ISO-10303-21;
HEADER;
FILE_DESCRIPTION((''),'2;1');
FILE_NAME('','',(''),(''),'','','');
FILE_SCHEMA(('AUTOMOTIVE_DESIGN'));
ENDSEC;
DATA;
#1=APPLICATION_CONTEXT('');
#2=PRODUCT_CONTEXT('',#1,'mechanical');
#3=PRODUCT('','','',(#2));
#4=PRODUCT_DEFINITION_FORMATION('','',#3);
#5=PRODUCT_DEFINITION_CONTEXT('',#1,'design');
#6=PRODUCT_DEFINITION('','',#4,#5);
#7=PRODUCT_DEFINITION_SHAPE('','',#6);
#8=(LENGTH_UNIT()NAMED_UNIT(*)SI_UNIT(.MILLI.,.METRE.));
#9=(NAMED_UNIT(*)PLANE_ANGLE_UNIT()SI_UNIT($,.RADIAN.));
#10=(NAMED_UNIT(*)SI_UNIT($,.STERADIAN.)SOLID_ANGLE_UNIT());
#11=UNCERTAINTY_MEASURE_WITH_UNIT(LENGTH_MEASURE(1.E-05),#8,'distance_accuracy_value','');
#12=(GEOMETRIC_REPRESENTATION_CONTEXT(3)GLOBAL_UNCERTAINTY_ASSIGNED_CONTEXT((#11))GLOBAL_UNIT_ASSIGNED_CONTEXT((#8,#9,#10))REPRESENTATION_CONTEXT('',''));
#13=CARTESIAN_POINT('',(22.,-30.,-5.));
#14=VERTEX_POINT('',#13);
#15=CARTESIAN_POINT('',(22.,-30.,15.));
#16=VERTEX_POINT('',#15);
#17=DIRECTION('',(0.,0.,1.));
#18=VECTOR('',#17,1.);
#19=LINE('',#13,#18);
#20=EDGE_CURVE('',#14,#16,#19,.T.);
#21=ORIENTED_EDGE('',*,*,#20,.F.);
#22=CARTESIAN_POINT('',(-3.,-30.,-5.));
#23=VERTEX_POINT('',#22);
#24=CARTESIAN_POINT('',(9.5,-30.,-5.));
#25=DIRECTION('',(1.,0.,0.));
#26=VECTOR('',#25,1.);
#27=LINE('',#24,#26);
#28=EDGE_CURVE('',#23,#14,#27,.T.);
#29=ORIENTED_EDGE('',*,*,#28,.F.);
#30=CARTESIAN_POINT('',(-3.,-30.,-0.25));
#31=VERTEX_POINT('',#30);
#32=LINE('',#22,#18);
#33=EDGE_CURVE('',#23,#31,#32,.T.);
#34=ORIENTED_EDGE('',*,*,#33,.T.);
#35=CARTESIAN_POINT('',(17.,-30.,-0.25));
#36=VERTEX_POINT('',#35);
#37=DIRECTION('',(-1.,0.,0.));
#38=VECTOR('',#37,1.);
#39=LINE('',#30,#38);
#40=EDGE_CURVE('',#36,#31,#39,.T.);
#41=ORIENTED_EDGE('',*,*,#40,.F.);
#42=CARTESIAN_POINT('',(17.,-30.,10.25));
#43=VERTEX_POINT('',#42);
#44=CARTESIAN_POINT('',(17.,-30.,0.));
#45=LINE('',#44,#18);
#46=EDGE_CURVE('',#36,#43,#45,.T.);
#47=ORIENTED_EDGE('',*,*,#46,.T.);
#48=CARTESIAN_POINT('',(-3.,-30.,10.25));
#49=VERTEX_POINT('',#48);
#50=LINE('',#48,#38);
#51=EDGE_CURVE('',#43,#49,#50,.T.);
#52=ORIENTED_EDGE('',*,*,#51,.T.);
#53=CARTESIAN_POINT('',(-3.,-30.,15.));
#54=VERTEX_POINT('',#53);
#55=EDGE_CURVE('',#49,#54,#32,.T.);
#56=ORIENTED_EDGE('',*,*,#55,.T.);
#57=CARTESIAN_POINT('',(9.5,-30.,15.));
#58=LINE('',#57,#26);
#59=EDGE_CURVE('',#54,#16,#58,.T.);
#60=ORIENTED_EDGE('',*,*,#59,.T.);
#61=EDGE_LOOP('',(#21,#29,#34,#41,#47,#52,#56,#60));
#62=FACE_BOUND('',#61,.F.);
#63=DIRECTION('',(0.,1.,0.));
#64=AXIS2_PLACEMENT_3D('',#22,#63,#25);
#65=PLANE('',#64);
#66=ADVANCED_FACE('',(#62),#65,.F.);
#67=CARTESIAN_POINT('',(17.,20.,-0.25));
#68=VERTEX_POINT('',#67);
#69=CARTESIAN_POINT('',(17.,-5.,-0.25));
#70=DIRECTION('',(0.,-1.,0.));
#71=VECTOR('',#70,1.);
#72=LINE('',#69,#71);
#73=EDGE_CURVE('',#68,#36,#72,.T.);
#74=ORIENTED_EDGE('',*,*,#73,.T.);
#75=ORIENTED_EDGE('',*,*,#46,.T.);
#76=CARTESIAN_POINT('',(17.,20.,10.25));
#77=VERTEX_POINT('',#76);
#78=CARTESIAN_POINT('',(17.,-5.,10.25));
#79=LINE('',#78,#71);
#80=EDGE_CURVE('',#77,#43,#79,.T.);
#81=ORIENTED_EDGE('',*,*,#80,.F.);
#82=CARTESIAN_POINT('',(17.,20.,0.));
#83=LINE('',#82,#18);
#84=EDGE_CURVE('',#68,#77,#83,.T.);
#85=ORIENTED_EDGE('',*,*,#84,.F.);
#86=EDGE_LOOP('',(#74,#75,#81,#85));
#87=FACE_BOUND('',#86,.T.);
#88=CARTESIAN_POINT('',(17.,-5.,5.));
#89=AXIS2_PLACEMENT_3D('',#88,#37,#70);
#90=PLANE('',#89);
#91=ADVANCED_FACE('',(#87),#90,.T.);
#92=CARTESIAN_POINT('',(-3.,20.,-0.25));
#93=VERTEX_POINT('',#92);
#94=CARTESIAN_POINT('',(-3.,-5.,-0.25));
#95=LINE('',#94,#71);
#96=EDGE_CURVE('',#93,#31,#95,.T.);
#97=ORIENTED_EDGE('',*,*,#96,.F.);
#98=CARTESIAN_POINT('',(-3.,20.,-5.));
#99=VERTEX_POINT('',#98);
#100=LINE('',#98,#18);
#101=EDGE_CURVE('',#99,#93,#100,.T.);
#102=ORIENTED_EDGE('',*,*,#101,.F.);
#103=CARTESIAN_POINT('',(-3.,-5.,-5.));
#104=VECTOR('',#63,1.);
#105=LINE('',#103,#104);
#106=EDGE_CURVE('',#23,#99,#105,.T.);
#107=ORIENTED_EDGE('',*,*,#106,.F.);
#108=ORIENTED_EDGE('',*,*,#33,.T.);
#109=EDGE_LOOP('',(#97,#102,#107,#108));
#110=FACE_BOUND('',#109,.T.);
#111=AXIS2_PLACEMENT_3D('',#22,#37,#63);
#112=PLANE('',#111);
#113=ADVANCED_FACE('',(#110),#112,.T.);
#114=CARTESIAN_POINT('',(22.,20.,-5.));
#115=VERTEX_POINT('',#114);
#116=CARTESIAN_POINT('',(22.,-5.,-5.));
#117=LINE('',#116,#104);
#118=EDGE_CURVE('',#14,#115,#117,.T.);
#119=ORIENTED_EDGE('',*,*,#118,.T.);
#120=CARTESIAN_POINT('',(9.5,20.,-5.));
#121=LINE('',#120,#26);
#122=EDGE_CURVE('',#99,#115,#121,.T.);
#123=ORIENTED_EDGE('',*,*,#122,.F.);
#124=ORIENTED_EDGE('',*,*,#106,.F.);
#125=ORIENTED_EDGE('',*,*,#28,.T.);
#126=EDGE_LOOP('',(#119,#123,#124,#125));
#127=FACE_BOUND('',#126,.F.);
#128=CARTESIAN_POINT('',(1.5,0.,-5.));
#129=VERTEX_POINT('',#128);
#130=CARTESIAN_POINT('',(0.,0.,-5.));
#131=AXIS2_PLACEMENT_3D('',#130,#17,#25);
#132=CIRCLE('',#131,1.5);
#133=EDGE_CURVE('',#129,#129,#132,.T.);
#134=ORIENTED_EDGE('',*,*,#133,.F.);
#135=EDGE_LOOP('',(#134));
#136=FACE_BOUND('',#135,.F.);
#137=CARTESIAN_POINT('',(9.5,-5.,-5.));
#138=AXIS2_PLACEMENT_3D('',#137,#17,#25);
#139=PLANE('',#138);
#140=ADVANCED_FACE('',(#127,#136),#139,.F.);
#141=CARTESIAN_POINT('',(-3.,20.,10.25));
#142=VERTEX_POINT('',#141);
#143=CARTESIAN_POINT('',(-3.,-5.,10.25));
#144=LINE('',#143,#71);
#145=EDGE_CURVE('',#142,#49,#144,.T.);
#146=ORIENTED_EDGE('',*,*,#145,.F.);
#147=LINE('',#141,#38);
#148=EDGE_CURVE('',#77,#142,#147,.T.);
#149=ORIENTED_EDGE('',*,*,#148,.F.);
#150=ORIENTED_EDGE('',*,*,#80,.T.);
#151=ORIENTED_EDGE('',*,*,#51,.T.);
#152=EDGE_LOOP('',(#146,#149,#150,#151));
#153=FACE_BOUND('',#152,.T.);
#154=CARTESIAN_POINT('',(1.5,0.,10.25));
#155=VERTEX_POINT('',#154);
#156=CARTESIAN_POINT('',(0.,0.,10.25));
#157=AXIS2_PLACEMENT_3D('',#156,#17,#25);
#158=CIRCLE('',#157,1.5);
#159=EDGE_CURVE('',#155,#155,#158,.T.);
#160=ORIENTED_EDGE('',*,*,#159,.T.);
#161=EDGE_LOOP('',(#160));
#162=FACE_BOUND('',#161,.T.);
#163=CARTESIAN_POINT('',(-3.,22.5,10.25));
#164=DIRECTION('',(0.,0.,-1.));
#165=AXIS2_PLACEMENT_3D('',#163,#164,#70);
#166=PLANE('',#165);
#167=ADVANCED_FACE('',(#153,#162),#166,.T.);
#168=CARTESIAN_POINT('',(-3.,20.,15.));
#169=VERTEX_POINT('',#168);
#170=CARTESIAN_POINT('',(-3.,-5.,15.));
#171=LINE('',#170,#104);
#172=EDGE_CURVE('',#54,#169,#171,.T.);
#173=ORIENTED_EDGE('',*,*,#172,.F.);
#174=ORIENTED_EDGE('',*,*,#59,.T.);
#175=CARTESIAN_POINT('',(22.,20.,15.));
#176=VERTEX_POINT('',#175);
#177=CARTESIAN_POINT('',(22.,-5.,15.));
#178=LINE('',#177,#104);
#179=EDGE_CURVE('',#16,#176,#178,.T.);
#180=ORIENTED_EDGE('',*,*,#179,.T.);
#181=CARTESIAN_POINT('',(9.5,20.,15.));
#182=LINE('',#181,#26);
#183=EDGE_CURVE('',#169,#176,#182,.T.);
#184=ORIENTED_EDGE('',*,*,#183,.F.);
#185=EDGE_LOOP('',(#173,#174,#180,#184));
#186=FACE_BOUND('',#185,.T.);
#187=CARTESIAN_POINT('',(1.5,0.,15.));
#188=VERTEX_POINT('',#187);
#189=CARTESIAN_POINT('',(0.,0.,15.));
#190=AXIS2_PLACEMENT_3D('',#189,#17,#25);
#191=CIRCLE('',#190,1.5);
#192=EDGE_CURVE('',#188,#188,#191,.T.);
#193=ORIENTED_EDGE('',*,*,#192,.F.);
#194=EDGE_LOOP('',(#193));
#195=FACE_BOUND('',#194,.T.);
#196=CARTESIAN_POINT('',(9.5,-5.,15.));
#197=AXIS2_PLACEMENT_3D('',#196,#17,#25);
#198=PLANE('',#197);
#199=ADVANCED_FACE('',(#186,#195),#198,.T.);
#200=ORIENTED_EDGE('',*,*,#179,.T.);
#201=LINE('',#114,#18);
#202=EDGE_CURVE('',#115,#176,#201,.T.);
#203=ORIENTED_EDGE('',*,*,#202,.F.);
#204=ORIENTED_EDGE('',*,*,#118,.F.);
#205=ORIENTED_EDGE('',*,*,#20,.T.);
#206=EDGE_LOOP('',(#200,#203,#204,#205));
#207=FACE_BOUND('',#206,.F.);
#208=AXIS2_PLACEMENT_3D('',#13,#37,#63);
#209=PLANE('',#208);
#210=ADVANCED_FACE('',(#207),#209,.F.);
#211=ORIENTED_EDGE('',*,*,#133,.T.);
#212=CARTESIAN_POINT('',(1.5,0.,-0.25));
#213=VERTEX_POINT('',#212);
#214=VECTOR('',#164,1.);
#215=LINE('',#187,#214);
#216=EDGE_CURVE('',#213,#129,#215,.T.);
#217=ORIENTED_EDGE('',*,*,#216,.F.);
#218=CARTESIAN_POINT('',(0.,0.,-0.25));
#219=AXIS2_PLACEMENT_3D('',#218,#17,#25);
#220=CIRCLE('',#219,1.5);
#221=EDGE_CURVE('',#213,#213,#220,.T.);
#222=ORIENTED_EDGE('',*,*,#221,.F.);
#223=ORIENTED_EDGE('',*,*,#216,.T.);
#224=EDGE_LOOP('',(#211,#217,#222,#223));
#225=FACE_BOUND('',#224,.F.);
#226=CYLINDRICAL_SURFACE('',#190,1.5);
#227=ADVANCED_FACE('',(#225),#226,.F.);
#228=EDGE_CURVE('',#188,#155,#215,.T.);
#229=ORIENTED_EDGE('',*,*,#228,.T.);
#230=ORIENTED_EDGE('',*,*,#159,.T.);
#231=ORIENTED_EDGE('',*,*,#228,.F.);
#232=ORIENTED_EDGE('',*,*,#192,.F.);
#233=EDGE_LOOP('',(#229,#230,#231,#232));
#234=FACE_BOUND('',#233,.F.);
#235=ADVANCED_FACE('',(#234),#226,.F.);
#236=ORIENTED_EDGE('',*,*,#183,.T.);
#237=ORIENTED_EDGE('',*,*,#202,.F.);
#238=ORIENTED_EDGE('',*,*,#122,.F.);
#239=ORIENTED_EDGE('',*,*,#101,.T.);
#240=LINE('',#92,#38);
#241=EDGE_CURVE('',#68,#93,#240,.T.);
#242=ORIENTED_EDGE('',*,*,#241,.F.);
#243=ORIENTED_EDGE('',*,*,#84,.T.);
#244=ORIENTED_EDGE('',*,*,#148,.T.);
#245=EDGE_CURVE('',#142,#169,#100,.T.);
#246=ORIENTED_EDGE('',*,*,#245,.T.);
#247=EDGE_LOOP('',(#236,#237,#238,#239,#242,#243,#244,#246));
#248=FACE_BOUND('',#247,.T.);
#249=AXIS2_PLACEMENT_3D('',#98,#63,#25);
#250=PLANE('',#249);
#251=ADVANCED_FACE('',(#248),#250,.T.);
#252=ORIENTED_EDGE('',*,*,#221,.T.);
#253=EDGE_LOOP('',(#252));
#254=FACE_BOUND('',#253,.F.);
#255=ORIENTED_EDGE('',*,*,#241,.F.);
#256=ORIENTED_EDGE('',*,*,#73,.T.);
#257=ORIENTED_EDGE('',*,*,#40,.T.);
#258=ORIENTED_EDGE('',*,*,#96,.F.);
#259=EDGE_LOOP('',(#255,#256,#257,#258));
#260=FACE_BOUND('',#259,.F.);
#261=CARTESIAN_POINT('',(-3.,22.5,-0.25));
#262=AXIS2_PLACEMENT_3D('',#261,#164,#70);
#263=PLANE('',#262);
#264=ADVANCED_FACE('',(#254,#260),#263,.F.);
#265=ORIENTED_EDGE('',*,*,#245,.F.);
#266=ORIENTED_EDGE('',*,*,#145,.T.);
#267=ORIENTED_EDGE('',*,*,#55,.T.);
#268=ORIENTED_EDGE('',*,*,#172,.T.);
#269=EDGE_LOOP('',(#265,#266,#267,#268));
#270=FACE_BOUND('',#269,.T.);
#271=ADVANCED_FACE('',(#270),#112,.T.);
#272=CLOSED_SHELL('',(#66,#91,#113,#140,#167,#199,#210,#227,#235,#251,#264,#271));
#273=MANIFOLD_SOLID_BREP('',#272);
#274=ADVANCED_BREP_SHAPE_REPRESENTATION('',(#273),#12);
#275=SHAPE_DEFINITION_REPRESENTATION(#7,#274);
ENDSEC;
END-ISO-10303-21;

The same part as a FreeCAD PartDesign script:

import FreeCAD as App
import Part
import Sketcher
from FreeCAD import Vector


def add_polygon(sketch, points):
    """Adds a closed chain of lines whose ends are joined by coincident constraints."""
    first, n = sketch.GeometryCount, len(points)
    for a, b in zip(points, points[1:] + points[:1]):
        sketch.addGeometry(Part.LineSegment(App.Vector(*a, 0), App.Vector(*b, 0)), False)
    for i in range(n):
        sketch.addConstraint(Sketcher.Constraint("Coincident", first + i, 2, first + (i + 1) % n, 1))

doc = App.newDocument("Part")
params = doc.addObject("Spreadsheet::Sheet", "Params")
for row, (alias, value) in enumerate([
    ("sketch1_width", "25 mm"),
    ("sketch1_height", "50 mm"),
    ("pad1_length", "20 mm"),
    ("sketch2_width", "55 mm"),
    ("sketch2_height", "10.5 mm"),
    ("pocket1_length", "20 mm"),
    ("sketch3_diameter", "3 mm"),
], start=1):
    params.set(f"A{row}", alias)
    params.set(f"B{row}", "=" + value)
    params.setAlias(f"B{row}", alias)

body = doc.addObject("PartDesign::Body", "Body")

sketch1 = body.newObject("Sketcher::SketchObject", "Sketch")
sketch1.AttachmentSupport = (doc.getObject("XY_Plane"), [""])
sketch1.MapMode = "FlatFace"
add_polygon(sketch1, [(-3, 20), (-3, -30), (22, -30), (22, 20)])
sketch1.addConstraint(Sketcher.Constraint("Vertical", 0))
sketch1.addConstraint(Sketcher.Constraint("Horizontal", 1))
sketch1.addConstraint(Sketcher.Constraint("Vertical", 2))
sketch1.addConstraint(Sketcher.Constraint("Horizontal", 3))
sketch1.addConstraint(Sketcher.Constraint("DistanceX", 1, 1, 1, 2, 25.0))
sketch1.addConstraint(Sketcher.Constraint("DistanceY", 0, 2, 0, 1, 50.0))
sketch1.addConstraint(Sketcher.Constraint("DistanceX", 0, 2, -1, 1, 3.0))
sketch1.addConstraint(Sketcher.Constraint("DistanceY", 0, 2, -1, 1, 30.0))
sketch1.setExpression("Constraints[8]", "Params.sketch1_width")
sketch1.setExpression("Constraints[9]", "Params.sketch1_height")
pad1 = body.newObject("PartDesign::Pad", "Pad")
pad1.Profile = sketch1
pad1.setExpression("Length", "Params.pad1_length")

sketch2 = body.newObject("Sketcher::SketchObject", "Sketch001")
sketch2.AttachmentSupport = (doc.getObject("YZ_Plane"), [""])
sketch2.MapMode = "FlatFace"
sketch2.AttachmentOffset = App.Placement(Vector(0, 0, -3), App.Rotation())
add_polygon(sketch2, [(22, 15), (22, 5), (-32, 5), (-32, 15)])
sketch2.addConstraint(Sketcher.Constraint("Vertical", 0))
sketch2.addConstraint(Sketcher.Constraint("Horizontal", 1))
sketch2.addConstraint(Sketcher.Constraint("Vertical", 2))
sketch2.addConstraint(Sketcher.Constraint("Horizontal", 3))
sketch2.addConstraint(Sketcher.Constraint("DistanceX", 1, 2, 1, 1, 55.0))
sketch2.addConstraint(Sketcher.Constraint("DistanceY", 0, 2, 0, 1, 10.5))
sketch2.addConstraint(Sketcher.Constraint("DistanceX", -1, 1, 0, 2, 22.5))
sketch2.addConstraint(Sketcher.Constraint("DistanceY", -1, 1, 0, 2, 4.75))
sketch2.setExpression("Constraints[8]", "Params.sketch2_width")
sketch2.setExpression("Constraints[9]", "Params.sketch2_height")
pocket1 = body.newObject("PartDesign::Pocket", "Pocket")
pocket1.Profile = sketch2
pocket1.setExpression("Length", "Params.pocket1_length")
pocket1.Reversed = True

sketch3 = body.newObject("Sketcher::SketchObject", "Sketch002")
sketch3.AttachmentSupport = (doc.getObject("XY_Plane"), [""])
sketch3.MapMode = "FlatFace"
sketch3.AttachmentOffset = App.Placement(Vector(0, 0, 20), App.Rotation())
sketch3.addGeometry(Part.Circle(Vector(0, 0, 0), Vector(0, 0, 1), 1.5), False)
sketch3.addConstraint(Sketcher.Constraint("Coincident", 0, 3, -1, 1))
sketch3.addConstraint(Sketcher.Constraint("Diameter", 0, 3.0))
sketch3.setExpression("Constraints[1]", "Params.sketch3_diameter")
pocket2 = body.newObject("PartDesign::Pocket", "Pocket001")
pocket2.Profile = sketch3
pocket2.Type = "ThroughAll"
body2 = doc.addObject("PartDesign::Body", "Body001")
doc.recompute()

body.Placement = App.Placement(Vector(0, 0, -5), App.Rotation(Vector(0, 0, 1), 0))
boolean = body2.newObject("PartDesign::Boolean", "Boolean")
boolean.Type = "Fuse"
boolean.addObjects([body])

doc.recompute()
